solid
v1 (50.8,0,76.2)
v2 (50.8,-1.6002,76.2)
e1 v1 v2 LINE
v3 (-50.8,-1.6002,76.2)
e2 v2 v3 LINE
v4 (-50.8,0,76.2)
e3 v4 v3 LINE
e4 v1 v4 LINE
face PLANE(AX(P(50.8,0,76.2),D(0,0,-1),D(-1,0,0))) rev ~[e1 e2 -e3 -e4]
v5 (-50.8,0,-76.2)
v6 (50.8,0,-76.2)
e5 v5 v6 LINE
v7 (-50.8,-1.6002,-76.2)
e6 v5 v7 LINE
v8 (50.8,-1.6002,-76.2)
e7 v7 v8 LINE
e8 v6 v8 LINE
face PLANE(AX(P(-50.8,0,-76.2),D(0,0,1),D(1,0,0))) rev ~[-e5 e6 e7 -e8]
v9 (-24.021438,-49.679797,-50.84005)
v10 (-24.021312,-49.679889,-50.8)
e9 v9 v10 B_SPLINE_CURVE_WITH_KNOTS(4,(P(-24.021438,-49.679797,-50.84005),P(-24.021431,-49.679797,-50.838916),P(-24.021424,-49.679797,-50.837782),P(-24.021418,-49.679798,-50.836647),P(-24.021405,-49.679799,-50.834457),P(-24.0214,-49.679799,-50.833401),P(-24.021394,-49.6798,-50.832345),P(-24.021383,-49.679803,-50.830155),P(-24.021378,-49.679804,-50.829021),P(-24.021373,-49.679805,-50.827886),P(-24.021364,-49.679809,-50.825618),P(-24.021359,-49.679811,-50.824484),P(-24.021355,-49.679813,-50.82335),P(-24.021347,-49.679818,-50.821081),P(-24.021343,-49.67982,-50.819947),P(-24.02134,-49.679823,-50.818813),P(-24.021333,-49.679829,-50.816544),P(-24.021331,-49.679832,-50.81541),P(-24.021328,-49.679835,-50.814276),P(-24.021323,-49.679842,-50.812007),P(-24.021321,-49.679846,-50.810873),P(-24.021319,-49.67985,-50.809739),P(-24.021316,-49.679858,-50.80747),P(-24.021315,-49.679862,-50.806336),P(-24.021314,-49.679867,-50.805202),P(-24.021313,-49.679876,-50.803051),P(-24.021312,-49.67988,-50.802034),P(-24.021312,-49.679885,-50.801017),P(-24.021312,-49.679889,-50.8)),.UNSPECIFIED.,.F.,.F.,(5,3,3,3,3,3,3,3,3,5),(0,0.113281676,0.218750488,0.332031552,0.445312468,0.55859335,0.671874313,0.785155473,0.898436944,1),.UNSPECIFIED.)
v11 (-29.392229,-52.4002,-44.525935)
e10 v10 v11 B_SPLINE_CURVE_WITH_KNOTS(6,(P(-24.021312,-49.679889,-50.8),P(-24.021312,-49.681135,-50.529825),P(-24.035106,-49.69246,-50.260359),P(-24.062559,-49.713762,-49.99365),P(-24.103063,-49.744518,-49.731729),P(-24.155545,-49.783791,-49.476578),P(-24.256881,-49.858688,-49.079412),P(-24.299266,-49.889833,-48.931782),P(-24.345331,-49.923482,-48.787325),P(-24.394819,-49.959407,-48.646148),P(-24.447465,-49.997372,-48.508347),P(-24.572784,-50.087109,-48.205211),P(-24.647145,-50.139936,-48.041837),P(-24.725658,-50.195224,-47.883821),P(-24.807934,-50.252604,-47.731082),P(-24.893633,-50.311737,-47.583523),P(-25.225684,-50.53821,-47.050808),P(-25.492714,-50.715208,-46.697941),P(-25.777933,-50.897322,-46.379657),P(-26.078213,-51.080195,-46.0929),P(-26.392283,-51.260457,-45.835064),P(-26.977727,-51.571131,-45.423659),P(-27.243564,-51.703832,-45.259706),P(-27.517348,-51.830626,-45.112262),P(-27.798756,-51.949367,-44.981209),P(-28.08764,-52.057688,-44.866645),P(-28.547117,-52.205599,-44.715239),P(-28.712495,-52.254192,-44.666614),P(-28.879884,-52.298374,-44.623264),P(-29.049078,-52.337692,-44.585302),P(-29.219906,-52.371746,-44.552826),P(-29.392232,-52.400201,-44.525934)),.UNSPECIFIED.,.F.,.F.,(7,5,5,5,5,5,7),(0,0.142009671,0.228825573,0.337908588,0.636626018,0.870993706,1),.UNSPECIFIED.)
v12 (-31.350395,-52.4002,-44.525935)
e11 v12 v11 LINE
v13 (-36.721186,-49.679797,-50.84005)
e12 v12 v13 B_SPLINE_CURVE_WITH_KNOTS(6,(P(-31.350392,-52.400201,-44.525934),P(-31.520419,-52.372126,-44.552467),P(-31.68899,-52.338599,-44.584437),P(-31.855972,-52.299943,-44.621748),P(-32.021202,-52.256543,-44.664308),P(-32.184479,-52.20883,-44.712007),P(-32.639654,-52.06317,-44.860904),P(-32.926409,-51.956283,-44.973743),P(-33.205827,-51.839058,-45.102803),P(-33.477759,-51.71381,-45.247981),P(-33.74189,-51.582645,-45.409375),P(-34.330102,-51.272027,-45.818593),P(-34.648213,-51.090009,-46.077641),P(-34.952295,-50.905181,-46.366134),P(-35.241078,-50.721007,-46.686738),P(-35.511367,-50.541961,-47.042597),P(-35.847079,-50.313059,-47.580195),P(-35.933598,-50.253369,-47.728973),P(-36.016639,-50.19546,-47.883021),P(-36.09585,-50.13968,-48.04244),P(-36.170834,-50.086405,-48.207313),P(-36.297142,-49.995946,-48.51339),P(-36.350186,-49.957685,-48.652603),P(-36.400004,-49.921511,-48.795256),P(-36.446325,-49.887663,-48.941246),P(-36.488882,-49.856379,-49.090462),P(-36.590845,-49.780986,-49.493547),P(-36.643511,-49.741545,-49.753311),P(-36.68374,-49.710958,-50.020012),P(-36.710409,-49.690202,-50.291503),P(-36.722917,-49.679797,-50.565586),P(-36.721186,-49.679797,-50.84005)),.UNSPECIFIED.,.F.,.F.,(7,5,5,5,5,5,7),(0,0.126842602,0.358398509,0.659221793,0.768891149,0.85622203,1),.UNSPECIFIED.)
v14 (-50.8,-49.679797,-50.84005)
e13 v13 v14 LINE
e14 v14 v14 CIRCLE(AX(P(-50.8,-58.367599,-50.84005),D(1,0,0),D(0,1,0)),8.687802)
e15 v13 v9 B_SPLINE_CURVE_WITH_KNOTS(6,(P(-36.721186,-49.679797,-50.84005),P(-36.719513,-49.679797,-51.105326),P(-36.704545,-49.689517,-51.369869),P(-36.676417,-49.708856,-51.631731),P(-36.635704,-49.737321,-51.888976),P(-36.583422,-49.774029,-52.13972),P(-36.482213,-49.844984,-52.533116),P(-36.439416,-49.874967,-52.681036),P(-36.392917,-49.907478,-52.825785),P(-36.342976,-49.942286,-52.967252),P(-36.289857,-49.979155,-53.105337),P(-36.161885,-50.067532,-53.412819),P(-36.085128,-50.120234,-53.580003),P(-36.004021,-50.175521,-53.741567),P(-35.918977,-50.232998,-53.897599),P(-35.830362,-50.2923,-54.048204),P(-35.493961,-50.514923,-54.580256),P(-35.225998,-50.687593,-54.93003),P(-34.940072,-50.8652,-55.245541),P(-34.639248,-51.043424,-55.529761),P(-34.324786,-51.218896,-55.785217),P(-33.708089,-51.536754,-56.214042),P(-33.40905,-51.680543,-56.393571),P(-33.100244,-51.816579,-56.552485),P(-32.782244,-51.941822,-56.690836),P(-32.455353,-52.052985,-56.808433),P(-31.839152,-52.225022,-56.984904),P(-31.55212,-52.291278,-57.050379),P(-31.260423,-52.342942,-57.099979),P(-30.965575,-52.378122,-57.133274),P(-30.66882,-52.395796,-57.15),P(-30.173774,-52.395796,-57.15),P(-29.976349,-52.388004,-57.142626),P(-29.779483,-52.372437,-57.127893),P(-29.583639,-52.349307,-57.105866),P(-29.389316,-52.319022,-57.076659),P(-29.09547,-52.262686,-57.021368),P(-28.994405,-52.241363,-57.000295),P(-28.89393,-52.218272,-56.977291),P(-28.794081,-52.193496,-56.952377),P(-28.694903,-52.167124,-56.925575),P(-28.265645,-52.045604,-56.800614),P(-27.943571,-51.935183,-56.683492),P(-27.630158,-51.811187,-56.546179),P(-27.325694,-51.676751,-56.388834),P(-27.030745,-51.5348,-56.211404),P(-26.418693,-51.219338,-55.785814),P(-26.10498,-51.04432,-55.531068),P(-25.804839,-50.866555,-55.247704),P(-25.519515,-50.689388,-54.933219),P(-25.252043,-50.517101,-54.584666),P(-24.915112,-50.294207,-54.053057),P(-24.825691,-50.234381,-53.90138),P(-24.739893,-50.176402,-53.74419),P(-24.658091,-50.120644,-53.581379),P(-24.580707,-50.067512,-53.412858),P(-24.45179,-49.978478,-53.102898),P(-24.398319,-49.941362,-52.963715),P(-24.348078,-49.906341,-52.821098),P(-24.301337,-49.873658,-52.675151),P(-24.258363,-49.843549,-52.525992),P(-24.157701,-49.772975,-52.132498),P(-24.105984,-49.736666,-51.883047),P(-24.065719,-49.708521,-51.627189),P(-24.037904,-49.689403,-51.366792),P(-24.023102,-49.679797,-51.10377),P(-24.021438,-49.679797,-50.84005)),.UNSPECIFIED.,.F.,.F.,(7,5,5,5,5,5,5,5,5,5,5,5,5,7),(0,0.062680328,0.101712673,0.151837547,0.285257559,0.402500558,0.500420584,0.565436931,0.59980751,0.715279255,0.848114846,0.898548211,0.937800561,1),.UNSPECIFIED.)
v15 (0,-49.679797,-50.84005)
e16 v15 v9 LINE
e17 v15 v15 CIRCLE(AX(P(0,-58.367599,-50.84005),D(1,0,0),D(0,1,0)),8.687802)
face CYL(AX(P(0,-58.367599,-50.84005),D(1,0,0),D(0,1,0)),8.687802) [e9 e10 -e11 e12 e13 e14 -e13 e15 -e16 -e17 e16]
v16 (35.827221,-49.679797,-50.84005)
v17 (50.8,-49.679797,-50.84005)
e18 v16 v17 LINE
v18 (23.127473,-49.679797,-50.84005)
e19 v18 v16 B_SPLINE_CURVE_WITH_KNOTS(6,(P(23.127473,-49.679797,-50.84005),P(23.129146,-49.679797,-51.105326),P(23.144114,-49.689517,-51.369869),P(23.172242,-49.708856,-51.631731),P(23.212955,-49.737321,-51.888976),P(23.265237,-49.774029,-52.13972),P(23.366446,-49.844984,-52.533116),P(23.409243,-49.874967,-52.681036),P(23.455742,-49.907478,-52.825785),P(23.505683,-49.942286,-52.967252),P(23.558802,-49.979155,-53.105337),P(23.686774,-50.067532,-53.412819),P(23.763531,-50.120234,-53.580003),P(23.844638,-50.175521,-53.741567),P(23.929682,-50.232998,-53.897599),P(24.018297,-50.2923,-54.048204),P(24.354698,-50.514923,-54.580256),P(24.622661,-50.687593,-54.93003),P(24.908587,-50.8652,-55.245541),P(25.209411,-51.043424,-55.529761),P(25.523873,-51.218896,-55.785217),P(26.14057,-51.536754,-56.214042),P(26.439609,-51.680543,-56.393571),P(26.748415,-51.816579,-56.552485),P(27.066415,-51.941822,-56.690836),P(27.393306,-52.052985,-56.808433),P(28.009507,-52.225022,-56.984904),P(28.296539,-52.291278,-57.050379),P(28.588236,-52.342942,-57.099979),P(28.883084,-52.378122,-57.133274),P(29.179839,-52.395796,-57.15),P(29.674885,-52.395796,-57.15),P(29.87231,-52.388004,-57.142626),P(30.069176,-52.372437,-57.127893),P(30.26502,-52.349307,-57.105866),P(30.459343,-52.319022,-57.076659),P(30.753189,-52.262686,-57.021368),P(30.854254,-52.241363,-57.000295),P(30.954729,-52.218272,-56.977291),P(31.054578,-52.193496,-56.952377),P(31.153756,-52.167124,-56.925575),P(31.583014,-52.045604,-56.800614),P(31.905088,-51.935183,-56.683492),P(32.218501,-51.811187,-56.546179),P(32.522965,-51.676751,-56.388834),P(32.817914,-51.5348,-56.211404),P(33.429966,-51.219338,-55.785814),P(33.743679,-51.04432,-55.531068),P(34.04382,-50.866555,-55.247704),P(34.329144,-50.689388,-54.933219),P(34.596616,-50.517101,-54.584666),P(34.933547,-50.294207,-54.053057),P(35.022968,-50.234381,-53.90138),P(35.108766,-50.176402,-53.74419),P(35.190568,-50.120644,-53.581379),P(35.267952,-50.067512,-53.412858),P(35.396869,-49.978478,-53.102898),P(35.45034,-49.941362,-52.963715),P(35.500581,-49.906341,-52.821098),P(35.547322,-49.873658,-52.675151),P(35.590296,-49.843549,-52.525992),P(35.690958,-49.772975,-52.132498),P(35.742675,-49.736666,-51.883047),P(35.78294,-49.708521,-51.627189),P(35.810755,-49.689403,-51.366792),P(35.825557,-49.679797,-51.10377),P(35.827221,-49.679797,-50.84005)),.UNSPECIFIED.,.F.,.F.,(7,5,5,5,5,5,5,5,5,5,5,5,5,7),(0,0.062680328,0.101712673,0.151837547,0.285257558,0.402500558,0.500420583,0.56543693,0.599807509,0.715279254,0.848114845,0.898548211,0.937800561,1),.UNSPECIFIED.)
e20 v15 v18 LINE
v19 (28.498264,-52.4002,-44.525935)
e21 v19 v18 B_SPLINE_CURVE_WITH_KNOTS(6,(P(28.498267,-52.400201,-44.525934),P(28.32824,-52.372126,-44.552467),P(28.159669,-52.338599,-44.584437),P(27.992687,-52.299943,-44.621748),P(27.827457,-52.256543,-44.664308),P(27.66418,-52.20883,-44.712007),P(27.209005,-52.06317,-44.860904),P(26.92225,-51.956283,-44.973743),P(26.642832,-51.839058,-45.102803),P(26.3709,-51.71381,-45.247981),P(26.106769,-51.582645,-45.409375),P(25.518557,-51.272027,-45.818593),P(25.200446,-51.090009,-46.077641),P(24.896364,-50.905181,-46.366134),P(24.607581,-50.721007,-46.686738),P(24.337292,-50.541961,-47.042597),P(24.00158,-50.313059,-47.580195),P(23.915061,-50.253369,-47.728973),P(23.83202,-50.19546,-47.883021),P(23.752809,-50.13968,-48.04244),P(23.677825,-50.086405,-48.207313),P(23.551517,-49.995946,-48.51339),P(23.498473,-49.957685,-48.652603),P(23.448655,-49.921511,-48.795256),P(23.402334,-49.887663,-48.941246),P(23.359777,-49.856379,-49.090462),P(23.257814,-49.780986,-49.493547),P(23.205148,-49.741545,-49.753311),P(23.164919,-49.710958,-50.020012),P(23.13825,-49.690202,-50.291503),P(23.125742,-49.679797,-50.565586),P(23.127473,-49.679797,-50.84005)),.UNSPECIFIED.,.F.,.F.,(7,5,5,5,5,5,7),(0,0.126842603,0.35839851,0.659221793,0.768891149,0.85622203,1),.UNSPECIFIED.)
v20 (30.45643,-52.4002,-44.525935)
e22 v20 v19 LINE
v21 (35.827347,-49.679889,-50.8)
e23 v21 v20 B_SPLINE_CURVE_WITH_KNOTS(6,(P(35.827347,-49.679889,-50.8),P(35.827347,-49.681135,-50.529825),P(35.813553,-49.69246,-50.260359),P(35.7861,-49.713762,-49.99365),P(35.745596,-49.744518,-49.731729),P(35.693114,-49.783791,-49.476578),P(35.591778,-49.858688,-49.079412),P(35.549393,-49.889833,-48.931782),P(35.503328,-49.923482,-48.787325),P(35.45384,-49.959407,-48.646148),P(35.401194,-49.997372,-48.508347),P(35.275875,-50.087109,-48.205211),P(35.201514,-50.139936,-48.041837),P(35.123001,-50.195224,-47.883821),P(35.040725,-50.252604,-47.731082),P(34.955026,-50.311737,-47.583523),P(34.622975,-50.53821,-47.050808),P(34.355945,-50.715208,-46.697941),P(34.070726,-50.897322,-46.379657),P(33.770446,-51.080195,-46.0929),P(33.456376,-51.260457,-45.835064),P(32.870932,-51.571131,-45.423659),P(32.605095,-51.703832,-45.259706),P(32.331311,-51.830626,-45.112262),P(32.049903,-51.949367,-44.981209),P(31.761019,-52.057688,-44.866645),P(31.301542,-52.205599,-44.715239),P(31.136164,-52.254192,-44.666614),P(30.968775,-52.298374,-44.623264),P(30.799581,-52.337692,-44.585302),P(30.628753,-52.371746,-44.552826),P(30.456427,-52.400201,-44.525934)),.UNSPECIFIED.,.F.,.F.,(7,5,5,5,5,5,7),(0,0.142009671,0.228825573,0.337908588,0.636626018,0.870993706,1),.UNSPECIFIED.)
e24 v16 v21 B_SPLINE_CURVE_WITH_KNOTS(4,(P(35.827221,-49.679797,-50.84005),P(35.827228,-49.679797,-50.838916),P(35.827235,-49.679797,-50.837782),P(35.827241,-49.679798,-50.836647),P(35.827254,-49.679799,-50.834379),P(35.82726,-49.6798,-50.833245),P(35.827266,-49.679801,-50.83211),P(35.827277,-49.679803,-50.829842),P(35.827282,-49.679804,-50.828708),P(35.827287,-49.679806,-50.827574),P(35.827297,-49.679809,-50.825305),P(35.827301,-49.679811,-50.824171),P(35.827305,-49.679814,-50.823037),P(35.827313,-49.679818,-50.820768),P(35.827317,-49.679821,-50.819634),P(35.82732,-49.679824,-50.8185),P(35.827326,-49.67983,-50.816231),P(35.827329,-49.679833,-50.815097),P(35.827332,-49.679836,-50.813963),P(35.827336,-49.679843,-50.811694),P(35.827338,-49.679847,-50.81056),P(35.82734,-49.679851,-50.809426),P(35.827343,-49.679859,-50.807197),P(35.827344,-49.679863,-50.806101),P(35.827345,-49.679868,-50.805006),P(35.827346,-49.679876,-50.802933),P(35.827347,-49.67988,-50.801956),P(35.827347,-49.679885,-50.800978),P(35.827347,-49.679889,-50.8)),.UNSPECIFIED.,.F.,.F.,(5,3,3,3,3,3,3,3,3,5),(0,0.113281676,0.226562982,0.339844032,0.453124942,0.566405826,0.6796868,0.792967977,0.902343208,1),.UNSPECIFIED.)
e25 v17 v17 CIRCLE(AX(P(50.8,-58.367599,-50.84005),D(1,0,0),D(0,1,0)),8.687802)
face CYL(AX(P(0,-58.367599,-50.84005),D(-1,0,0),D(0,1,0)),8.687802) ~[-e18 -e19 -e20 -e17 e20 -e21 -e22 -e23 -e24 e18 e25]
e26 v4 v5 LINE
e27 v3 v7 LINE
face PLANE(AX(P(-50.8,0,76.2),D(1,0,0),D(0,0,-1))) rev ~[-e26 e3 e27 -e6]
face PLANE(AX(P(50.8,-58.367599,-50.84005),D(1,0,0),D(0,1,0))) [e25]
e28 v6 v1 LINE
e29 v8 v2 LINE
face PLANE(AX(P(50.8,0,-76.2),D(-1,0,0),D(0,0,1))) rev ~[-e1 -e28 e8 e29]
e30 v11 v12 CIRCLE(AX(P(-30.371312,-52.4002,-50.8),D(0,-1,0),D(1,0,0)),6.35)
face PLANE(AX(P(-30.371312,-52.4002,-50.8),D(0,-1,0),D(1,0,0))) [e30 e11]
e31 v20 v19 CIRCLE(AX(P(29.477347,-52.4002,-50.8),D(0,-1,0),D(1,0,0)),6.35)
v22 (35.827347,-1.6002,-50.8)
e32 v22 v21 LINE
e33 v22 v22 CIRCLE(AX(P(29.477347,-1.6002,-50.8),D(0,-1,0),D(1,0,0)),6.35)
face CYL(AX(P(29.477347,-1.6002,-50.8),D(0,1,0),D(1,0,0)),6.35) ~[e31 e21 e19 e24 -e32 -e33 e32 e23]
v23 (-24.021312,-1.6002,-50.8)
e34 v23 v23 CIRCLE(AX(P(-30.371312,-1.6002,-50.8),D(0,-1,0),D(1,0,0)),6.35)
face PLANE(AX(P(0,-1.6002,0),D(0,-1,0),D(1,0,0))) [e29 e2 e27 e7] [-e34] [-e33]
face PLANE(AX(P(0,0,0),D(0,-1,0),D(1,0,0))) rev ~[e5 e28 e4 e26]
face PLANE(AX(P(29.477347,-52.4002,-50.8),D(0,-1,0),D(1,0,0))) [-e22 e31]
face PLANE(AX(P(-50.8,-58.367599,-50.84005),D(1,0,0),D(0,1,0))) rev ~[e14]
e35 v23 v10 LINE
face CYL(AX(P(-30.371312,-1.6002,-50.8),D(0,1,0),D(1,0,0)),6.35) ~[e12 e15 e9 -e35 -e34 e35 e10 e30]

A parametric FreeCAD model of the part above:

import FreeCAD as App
import Part
import Sketcher
from FreeCAD import Vector
Q = App.Units.Quantity

doc = App.newDocument("Part")
body = doc.addObject("PartDesign::Body", "Body")

# Sketch on XZ plane
sketch1 = body.newObject("Sketcher::SketchObject", "Sketch")
sketch1.AttachmentSupport = (doc.getObject("XZ_Plane"), [""])
sketch1.MapMode = "FlatFace"
sketch1.addGeometry([
    Part.LineSegment(Vector(-51, 76, 0), Vector(-51, -76, 0)),
    Part.LineSegment(Vector(-51, -76, 0), Vector(51, -76, 0)),
    Part.LineSegment(Vector(51, -76, 0), Vector(51, 76, 0)),
    Part.LineSegment(Vector(51, 76, 0), Vector(-51, 76, 0)),
], False)
sketch1.addConstraint([
    Sketcher.Constraint("Coincident", 0, 2, 1, 1),
    Sketcher.Constraint("Coincident", 1, 2, 2, 1),
    Sketcher.Constraint("Coincident", 2, 2, 3, 1),
    Sketcher.Constraint("Coincident", 3, 2, 0, 1),
    Sketcher.Constraint("Vertical", 0),
    Sketcher.Constraint("Horizontal", 1),
    Sketcher.Constraint("Vertical", 2),
    Sketcher.Constraint("Horizontal", 3),
    Sketcher.Constraint("Symmetric", 0, 2, 2, 2, -1, 1),
    Sketcher.Constraint("DistanceX", 1, 1, 1, 2, Q("4 in")),
    Sketcher.Constraint("DistanceY", 0, 2, 0, 1, Q("6 in")),
])
pad1 = body.newObject("PartDesign::Pad", "Pad")
pad1.Profile = sketch1
pad1.Length = Q("0.063 in")

# Sketch on XZ plane
sketch2 = body.newObject("Sketcher::SketchObject", "Sketch001")
sketch2.AttachmentSupport = (doc.getObject("XZ_Plane"), [""])
sketch2.MapMode = "FlatFace"
sketch2.AttachmentOffset = App.Placement(Vector(0, 0, 0.063 * 25.4), App.Rotation())
sketch2.addGeometry([
    Part.Circle(Vector(-30, -51, 0), Vector(0, 0, 1), 6),
    Part.Circle(Vector(29, -51, 0), Vector(0, 0, 1), 6),
], False)
sketch2.addConstraint([
    Sketcher.Constraint("Equal", 0, 1),
    Sketcher.Constraint("Horizontal", 0, 3, 1, 3),
    Sketcher.Constraint("Diameter", 0, Q("0.5 in")),
    Sketcher.Constraint("DistanceY", 0, 3, -1, 1, Q("2 in")),
    Sketcher.Constraint("DistanceX", 0, 3, -1, 1, 30.371312),
    Sketcher.Constraint("DistanceX", 0, 3, 1, 3, 59.848659),
])
pad2 = body.newObject("PartDesign::Pad", "Pad001")
pad2.Profile = sketch2
pad2.Length = Q("2 in")

# Sketch on YZ plane
sketch3 = body.newObject("Sketcher::SketchObject", "Sketch002")
sketch3.AttachmentSupport = (doc.getObject("YZ_Plane"), [""])
sketch3.MapMode = "FlatFace"
sketch3.addGeometry(Part.Circle(Vector(-58, -51, 0), Vector(0, 0, 1), 9), False)
sketch3.addConstraint([
    Sketcher.Constraint("Diameter", 0, 17.375604),
    Sketcher.Constraint("DistanceX", 0, 3, -1, 1, 58.367599),
    Sketcher.Constraint("DistanceY", 0, 3, -1, 1, 50.84005),
])
pad3 = body.newObject("PartDesign::Pad", "Pad002")
pad3.Profile = sketch3
pad3.Type = "TwoLengths"
pad3.Length = Q("2 in")
pad3.Length2 = Q("2 in")

doc.recompute()
